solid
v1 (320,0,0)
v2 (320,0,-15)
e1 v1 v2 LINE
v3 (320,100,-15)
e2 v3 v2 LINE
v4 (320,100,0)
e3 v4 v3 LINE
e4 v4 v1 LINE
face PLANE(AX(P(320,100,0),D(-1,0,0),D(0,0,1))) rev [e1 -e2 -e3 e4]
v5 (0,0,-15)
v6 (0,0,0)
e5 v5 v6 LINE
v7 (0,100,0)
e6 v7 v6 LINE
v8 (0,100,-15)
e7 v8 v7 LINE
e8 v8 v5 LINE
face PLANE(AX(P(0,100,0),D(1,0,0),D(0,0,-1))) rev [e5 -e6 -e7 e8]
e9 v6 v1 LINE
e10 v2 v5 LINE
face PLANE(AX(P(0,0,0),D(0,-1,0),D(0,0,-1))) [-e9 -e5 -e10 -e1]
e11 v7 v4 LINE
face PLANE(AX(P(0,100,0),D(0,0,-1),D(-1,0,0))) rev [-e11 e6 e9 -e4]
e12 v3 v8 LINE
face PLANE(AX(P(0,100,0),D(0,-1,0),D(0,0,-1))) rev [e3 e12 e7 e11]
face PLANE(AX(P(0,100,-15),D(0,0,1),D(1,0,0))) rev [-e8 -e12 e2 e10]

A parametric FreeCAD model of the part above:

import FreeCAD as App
import Part
import Sketcher
from FreeCAD import Vector
Q = App.Units.Quantity

doc = App.newDocument("Part")
params = doc.addObject("Spreadsheet::Sheet", "Params")
for row, (alias, value) in enumerate([
    ("sketch1_width", "320 mm"),
    ("sketch1_height", "15 mm"),
    ("pad1_length", "100 mm"),
], start=1):
    params.set(f"A{row}", alias)
    params.set(f"B{row}", "=" + value)
    params.setAlias(f"B{row}", alias)

body = doc.addObject("PartDesign::Body", "Body")

# Sketch on XZ plane
sketch1 = body.newObject("Sketcher::SketchObject", "Sketch")
sketch1.AttachmentSupport = (doc.getObject("XZ_Plane"), [""])
sketch1.MapMode = "FlatFace"
sketch1.addGeometry(Part.LineSegment(Vector(0, -15, 0), Vector(0, 0, 0)), False)
sketch1.addGeometry(Part.LineSegment(Vector(0, 0, 0), Vector(320, 0, 0)), False)
sketch1.addGeometry(Part.LineSegment(Vector(320, 0, 0), Vector(320, -15, 0)), False)
sketch1.addGeometry(Part.LineSegment(Vector(320, -15, 0), Vector(0, -15, 0)), False)
sketch1.addConstraint(Sketcher.Constraint("Coincident", 0, 2, 1, 1))
sketch1.addConstraint(Sketcher.Constraint("Coincident", 1, 2, 2, 1))
sketch1.addConstraint(Sketcher.Constraint("Coincident", 2, 2, 3, 1))
sketch1.addConstraint(Sketcher.Constraint("Coincident", 3, 2, 0, 1))
sketch1.addConstraint(Sketcher.Constraint("Vertical", 0))
sketch1.addConstraint(Sketcher.Constraint("Horizontal", 1))
sketch1.addConstraint(Sketcher.Constraint("Vertical", 2))
sketch1.addConstraint(Sketcher.Constraint("Horizontal", 3))
sketch1.addConstraint(Sketcher.Constraint("Coincident", 0, 2, -1, 1))
sketch1.addConstraint(Sketcher.Constraint("DistanceX", 1, 1, 1, 2, Q("320 mm")))
sketch1.addConstraint(Sketcher.Constraint("DistanceY", 0, 1, 0, 2, Q("15 mm")))
sketch1.setExpression("Constraints[9]", "Params.sketch1_width")
sketch1.setExpression("Constraints[10]", "Params.sketch1_height")
pad1 = body.newObject("PartDesign::Pad", "Pad")
pad1.Profile = sketch1
pad1.setExpression("Length", "Params.pad1_length")
pad1.Reversed = True

doc.recompute()
